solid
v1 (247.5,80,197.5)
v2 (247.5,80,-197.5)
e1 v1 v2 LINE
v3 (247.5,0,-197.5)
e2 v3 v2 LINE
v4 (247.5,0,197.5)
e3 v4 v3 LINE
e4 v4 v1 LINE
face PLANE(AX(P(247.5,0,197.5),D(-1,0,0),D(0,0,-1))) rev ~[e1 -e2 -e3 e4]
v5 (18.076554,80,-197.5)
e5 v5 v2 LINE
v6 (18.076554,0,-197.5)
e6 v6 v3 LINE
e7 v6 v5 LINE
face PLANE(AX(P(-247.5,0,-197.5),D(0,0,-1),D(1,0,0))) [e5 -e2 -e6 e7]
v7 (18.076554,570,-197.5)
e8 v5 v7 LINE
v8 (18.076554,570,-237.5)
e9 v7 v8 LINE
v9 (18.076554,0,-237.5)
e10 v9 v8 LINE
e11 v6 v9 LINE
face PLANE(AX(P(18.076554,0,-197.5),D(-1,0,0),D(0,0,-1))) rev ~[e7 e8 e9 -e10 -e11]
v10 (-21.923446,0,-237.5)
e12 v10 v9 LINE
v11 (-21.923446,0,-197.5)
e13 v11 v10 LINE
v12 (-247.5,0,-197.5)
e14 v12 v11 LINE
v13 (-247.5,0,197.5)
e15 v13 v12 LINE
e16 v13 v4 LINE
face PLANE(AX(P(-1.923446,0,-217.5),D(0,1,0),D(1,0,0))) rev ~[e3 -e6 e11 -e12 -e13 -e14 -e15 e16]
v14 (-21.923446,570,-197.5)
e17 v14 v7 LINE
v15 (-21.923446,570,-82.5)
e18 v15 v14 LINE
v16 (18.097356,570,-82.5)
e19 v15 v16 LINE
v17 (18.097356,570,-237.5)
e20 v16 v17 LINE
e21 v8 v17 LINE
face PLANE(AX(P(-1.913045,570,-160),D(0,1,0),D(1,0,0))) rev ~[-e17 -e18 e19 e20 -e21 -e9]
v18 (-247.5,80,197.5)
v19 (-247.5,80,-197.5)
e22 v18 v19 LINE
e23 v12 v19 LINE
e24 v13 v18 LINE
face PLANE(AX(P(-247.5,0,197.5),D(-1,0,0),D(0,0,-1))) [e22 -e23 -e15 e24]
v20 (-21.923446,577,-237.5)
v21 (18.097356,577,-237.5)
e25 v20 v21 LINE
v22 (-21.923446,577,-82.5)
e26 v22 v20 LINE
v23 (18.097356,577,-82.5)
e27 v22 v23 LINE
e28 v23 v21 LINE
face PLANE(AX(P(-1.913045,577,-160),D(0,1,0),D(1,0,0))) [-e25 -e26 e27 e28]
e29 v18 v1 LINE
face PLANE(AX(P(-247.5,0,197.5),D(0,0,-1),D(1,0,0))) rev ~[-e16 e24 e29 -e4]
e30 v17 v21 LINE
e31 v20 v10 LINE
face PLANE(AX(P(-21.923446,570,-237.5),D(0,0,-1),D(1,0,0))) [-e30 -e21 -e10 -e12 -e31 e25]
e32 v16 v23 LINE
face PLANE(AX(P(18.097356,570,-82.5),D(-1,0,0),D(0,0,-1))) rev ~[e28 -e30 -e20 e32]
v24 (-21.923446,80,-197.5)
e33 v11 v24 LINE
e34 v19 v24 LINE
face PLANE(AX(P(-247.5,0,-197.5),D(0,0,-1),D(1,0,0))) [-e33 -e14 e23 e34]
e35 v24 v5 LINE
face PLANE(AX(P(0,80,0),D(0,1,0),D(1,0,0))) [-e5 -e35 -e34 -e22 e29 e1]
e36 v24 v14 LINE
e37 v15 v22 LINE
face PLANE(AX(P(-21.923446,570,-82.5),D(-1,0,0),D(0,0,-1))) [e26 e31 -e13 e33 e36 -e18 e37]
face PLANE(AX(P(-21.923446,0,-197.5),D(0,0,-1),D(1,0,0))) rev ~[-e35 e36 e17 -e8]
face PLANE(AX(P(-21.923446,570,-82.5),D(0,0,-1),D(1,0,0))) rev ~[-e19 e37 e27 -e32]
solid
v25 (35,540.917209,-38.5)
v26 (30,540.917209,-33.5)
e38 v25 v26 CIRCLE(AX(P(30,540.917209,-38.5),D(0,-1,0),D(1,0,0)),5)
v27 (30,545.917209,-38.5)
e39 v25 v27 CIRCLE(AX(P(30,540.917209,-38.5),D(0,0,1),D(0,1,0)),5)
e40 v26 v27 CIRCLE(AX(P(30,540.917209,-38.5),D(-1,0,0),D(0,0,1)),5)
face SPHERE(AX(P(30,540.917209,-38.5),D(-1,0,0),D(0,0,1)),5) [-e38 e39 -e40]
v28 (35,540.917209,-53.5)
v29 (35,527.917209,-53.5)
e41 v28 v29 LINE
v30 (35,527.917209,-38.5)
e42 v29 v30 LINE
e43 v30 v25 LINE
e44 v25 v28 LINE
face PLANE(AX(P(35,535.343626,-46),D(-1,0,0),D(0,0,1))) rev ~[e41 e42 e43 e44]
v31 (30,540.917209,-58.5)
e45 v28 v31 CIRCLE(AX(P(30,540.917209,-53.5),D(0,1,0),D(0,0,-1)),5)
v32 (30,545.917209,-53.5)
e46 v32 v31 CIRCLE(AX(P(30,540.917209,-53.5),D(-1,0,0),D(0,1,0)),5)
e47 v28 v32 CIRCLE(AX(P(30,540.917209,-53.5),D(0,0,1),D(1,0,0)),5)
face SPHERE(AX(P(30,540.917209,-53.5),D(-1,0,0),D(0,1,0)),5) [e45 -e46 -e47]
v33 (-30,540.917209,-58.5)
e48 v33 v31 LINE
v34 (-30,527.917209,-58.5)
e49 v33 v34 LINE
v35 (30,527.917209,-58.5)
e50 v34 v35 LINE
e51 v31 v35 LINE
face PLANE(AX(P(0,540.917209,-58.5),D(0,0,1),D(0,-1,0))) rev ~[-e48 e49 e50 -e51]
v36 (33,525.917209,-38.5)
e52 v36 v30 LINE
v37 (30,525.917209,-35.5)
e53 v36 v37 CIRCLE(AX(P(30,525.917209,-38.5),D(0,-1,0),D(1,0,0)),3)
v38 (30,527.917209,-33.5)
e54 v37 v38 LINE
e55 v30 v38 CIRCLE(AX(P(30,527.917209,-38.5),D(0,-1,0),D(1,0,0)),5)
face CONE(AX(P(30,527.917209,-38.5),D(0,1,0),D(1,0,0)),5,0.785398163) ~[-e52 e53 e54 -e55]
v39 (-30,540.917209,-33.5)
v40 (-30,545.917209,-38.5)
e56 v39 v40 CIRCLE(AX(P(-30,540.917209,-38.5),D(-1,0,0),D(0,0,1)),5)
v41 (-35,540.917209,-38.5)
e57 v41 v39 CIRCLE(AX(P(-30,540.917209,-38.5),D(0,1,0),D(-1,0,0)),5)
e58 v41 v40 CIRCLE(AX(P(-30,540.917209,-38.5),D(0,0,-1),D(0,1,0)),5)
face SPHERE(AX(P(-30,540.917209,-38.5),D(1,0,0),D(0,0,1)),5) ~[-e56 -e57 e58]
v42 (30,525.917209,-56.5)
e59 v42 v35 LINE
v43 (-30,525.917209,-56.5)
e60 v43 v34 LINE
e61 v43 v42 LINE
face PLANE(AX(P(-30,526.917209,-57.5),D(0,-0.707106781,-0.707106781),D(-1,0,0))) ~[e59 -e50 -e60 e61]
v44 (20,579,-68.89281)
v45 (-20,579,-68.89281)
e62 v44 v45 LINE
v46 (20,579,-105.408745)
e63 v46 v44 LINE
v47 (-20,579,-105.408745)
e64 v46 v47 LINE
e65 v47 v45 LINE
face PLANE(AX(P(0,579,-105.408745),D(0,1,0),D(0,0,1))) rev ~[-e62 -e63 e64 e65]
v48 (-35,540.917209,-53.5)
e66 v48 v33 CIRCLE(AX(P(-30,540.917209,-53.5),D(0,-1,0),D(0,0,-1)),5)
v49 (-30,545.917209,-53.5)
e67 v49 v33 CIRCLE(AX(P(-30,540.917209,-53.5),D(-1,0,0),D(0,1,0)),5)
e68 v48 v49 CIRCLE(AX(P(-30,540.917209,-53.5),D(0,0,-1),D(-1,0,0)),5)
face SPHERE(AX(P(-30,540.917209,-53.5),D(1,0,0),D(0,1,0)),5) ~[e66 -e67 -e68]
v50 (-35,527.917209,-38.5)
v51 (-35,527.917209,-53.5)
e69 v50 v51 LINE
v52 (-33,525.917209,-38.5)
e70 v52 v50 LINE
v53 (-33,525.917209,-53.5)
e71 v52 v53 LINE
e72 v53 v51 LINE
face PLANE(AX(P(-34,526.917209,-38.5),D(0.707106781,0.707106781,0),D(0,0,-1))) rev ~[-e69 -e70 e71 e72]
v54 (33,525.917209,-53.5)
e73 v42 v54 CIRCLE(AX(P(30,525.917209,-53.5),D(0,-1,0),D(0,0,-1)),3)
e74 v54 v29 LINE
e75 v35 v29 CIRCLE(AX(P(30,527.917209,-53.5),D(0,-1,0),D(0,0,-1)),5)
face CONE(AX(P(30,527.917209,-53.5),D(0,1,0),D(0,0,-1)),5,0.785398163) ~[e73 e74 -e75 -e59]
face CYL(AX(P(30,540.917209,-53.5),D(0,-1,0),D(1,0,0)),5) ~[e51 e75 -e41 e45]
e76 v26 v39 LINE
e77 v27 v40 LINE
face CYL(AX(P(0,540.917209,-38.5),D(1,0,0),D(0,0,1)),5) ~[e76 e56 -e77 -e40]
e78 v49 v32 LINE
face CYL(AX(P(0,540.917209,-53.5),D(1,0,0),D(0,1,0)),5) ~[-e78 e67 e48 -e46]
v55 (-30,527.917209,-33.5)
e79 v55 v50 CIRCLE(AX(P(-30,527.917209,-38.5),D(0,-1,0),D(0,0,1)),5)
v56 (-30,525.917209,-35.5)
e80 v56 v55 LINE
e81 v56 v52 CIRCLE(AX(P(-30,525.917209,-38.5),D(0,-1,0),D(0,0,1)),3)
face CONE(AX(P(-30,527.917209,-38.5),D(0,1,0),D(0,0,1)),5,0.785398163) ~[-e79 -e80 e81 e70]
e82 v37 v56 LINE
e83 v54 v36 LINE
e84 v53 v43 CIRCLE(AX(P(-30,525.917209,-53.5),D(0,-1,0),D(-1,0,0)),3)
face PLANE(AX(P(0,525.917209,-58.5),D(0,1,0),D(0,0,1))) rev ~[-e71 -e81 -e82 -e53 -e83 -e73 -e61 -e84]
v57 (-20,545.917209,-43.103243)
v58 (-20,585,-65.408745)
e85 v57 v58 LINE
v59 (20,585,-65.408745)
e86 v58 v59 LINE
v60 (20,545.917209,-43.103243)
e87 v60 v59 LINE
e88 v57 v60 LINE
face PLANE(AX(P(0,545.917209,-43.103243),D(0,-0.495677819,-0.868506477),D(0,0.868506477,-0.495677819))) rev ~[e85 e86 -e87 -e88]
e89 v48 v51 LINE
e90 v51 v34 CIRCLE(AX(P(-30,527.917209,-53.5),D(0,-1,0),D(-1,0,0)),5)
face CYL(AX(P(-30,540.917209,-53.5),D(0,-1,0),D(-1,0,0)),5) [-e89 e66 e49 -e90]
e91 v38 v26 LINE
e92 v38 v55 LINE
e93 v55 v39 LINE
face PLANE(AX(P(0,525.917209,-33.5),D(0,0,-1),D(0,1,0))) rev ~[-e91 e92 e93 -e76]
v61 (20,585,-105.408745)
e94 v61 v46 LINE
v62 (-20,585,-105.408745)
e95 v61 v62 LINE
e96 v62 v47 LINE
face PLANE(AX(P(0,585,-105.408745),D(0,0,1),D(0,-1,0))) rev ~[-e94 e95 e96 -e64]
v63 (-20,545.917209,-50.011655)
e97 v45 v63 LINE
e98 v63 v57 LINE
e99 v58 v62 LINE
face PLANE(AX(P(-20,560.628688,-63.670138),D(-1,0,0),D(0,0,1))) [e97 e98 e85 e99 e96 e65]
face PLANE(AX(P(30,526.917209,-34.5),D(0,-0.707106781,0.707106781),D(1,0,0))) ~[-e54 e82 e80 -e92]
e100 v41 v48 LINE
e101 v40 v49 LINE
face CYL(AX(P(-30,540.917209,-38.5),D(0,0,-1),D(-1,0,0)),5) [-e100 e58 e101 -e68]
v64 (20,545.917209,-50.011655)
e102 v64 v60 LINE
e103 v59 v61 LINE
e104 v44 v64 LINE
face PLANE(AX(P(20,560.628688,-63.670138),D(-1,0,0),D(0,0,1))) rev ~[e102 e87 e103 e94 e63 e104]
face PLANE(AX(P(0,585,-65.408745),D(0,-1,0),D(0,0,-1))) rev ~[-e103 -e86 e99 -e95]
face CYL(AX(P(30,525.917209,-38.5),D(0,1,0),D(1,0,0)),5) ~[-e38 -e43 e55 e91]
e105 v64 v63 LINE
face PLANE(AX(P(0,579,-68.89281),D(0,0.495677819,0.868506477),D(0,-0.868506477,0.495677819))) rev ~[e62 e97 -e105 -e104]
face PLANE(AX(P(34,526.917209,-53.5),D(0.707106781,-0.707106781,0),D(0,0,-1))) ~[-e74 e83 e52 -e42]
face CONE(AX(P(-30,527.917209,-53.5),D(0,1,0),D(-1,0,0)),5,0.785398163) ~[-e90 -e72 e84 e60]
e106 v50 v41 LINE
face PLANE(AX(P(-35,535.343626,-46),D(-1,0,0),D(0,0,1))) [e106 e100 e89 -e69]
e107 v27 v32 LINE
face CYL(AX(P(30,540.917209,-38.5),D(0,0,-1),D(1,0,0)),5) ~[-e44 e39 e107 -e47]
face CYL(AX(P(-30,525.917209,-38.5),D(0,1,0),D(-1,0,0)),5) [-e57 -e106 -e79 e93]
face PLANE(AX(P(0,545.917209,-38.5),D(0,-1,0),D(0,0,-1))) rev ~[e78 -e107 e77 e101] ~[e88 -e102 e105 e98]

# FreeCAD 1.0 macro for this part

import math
import FreeCAD as App
import Part
import Sketcher

V = App.Vector


def edges_at(feature, points):
    """Names of the edges that pass closest to the given points."""
    edges = feature.Shape.Edges
    near = lambda p: min(range(len(edges)), key=lambda i: edges[i].distToShape(Part.Vertex(*p))[0])
    return sorted({f"Edge{near(p) + 1}" for p in points})


def add_polygon(sketch, points):
    """Adds a closed chain of lines whose ends are joined by coincident constraints."""
    first, n = sketch.GeometryCount, len(points)
    for a, b in zip(points, points[1:] + points[:1]):
        sketch.addGeometry(Part.LineSegment(App.Vector(*a, 0), App.Vector(*b, 0)), False)
    for i in range(n):
        sketch.addConstraint(Sketcher.Constraint("Coincident", first + i, 2, first + (i + 1) % n, 1))

doc = App.newDocument("Part")
body = doc.addObject("PartDesign::Body", "Body")

sketch1 = body.newObject("Sketcher::SketchObject", "Sketch")
sketch1.AttachmentSupport = (doc.getObject("XZ_Plane"), [""])
sketch1.MapMode = "FlatFace"
add_polygon(sketch1, [(-248, -198), (-248, 198), (248, 198), (248, -198)])
sketch1.addConstraint(Sketcher.Constraint("Vertical", 0))
sketch1.addConstraint(Sketcher.Constraint("Horizontal", 1))
sketch1.addConstraint(Sketcher.Constraint("Vertical", 2))
sketch1.addConstraint(Sketcher.Constraint("Horizontal", 3))
sketch1.addConstraint(Sketcher.Constraint("Symmetric", 0, 2, 2, 2, -1, 1))
sketch1.addConstraint(Sketcher.Constraint("DistanceX", 1, 1, 1, 2, 495.0))
sketch1.addConstraint(Sketcher.Constraint("DistanceY", 0, 1, 0, 2, 395.0))
pad1 = body.newObject("PartDesign::Pad", "Pad")
pad1.Profile = sketch1
pad1.Length = 80
pad1.Reversed = True

sketch2 = body.newObject("Sketcher::SketchObject", "Sketch001")
sketch2.AttachmentSupport = (doc.getObject("XZ_Plane"), [""])
sketch2.MapMode = "FlatFace"
add_polygon(sketch2, [(-22, -238), (-22, -198), (18, -198), (18, -238)])
sketch2.addConstraint(Sketcher.Constraint("Vertical", 0))
sketch2.addConstraint(Sketcher.Constraint("Horizontal", 1))
sketch2.addConstraint(Sketcher.Constraint("Vertical", 2))
sketch2.addConstraint(Sketcher.Constraint("Horizontal", 3))
sketch2.addConstraint(Sketcher.Constraint("Equal", 3, 0))
sketch2.addConstraint(Sketcher.Constraint("DistanceX", 1, 1, 1, 2, 40.0))
sketch2.addConstraint(Sketcher.Constraint("DistanceY", 0, 2, -1, 1, 197.5))
sketch2.addConstraint(Sketcher.Constraint("DistanceX", 0, 2, -1, 1, 21.923446))
pad2 = body.newObject("PartDesign::Pad", "Pad001")
pad2.Profile = sketch2
pad2.Length = 570
pad2.Reversed = True

sketch3 = body.newObject("Sketcher::SketchObject", "Sketch002")
sketch3.AttachmentSupport = (doc.getObject("XZ_Plane"), [""])
sketch3.MapMode = "FlatFace"
sketch3.AttachmentOffset = App.Placement(V(0, 0, -570), App.Rotation())
add_polygon(sketch3, [(-22, -238), (-22, -82), (18, -82), (18, -238)])
sketch3.addConstraint(Sketcher.Constraint("Vertical", 0))
sketch3.addConstraint(Sketcher.Constraint("Horizontal", 1))
sketch3.addConstraint(Sketcher.Constraint("Vertical", 2))
sketch3.addConstraint(Sketcher.Constraint("Horizontal", 3))
sketch3.addConstraint(Sketcher.Constraint("DistanceY", 0, 1, 0, 2, 155.0))
sketch3.addConstraint(Sketcher.Constraint("DistanceY", 0, 2, -1, 1, 82.5))
sketch3.addConstraint(Sketcher.Constraint("DistanceX", 1, 1, 1, 2, 40.020802))
sketch3.addConstraint(Sketcher.Constraint("DistanceX", 0, 2, -1, 1, 21.923446))
pad3 = body.newObject("PartDesign::Pad", "Pad002")
pad3.Profile = sketch3
pad3.Length = 7
pad3.Reversed = True
body2 = doc.addObject("PartDesign::Body", "Body001")

sketch4 = body2.newObject("Sketcher::SketchObject", "Sketch003")
sketch4.AttachmentSupport = (doc.getObject("YZ_Plane001"), [""])
sketch4.MapMode = "FlatFace"
sketch4.addGeometry(Part.LineSegment(V(585, -105.4, 0), V(585, -65.4, 0)), False)
sketch4.addGeometry(Part.LineSegment(V(585, -65.4, 0), V(545.9, -43.1, 0)), False)
sketch4.addGeometry(Part.LineSegment(V(545.9, -43.1, 0), V(545.9, -38.5, 0)), False)
sketch4.addGeometry(Part.ArcOfCircle(Part.Circle(V(540.9, -38.5, 0), V(0, 0, 1), 5), math.radians(0), math.radians(90)), False)
sketch4.addGeometry(Part.LineSegment(V(540.9, -33.5, 0), V(525.9, -33.5, 0)), False)
sketch4.addGeometry(Part.LineSegment(V(525.9, -33.5, 0), V(525.9, -58.5, 0)), False)
sketch4.addGeometry(Part.LineSegment(V(525.9, -58.5, 0), V(540.9, -58.5, 0)), False)
sketch4.addGeometry(Part.ArcOfCircle(Part.Circle(V(540.9, -53.5, 0), V(0, 0, 1), 5), math.radians(-90), math.radians(0)), False)
sketch4.addGeometry(Part.LineSegment(V(545.9, -53.5, 0), V(545.9, -50, 0)), False)
sketch4.addGeometry(Part.LineSegment(V(545.9, -50, 0), V(579, -68.9, 0)), False)
sketch4.addGeometry(Part.LineSegment(V(579, -68.9, 0), V(579, -105.4, 0)), False)
sketch4.addGeometry(Part.LineSegment(V(579, -105.4, 0), V(585, -105.4, 0)), False)
sketch4.addConstraint(Sketcher.Constraint("Coincident", 0, 2, 1, 1))
sketch4.addConstraint(Sketcher.Constraint("Coincident", 1, 2, 2, 1))
sketch4.addConstraint(Sketcher.Constraint("Tangent", 2, 2, 3, 1))
sketch4.addConstraint(Sketcher.Constraint("Tangent", 3, 2, 4, 1))
sketch4.addConstraint(Sketcher.Constraint("Coincident", 4, 2, 5, 1))
sketch4.addConstraint(Sketcher.Constraint("Coincident", 5, 2, 6, 1))
sketch4.addConstraint(Sketcher.Constraint("Tangent", 6, 2, 7, 1))
sketch4.addConstraint(Sketcher.Constraint("Tangent", 7, 2, 8, 1))
sketch4.addConstraint(Sketcher.Constraint("Coincident", 8, 2, 9, 1))
sketch4.addConstraint(Sketcher.Constraint("Coincident", 9, 2, 10, 1))
sketch4.addConstraint(Sketcher.Constraint("Coincident", 10, 2, 11, 1))
sketch4.addConstraint(Sketcher.Constraint("Coincident", 11, 2, 0, 1))
sketch4.addConstraint(Sketcher.Constraint("Vertical", 0))
sketch4.addConstraint(Sketcher.Constraint("Vertical", 2))
sketch4.addConstraint(Sketcher.Constraint("Horizontal", 4))
sketch4.addConstraint(Sketcher.Constraint("Vertical", 5))
sketch4.addConstraint(Sketcher.Constraint("Horizontal", 6))
sketch4.addConstraint(Sketcher.Constraint("Vertical", 8))
sketch4.addConstraint(Sketcher.Constraint("Vertical", 10))
sketch4.addConstraint(Sketcher.Constraint("Horizontal", 11))
sketch4.addConstraint(Sketcher.Constraint("Equal", 3, 7))
sketch4.addConstraint(Sketcher.Constraint("Parallel", 1, 9))
sketch4.addConstraint(Sketcher.Constraint("Vertical", 3, 3, 7, 3))
sketch4.addConstraint(Sketcher.Constraint("Radius", 3, 5.0))
sketch4.addConstraint(Sketcher.Constraint("DistanceX", 4, 2, 4, 1, 15.0))
sketch4.addConstraint(Sketcher.Constraint("DistanceX", 11, 1, 11, 2, 6.0))
sketch4.addConstraint(Sketcher.Constraint("DistanceY", 0, 1, 0, 2, 40.0))
sketch4.addConstraint(Sketcher.Constraint("DistanceY", 5, 2, 5, 1, 25.0))
sketch4.addConstraint(Sketcher.Constraint("Distance", 1, 45.0))
sketch4.addConstraint(Sketcher.Constraint("DistanceX", -1, 1, 0, 2, 585.0))
sketch4.addConstraint(Sketcher.Constraint("DistanceY", 3, 3, -1, 1, 38.5))
sketch4.addConstraint(Sketcher.Constraint("DistanceY", 0, 2, 1, 2, 22.305502))
sketch4.addConstraint(Sketcher.Constraint("DistanceY", 2, 1, 2, 2, 4.603243))
sketch4.addConstraint(Sketcher.Constraint("DistanceY", 8, 1, 8, 2, 3.488345))
pad4 = body2.newObject("PartDesign::Pad", "Pad003")
pad4.Profile = sketch4
pad4.Length = 40
pad4.Midplane = True

sketch5 = body2.newObject("Sketcher::SketchObject", "Sketch004")
sketch5.AttachmentSupport = (doc.getObject("YZ_Plane001"), [""])
sketch5.MapMode = "FlatFace"
sketch5.addGeometry(Part.LineSegment(V(526, -34, 0), V(526, -58, 0)), False)
sketch5.addGeometry(Part.LineSegment(V(526, -58, 0), V(541, -58, 0)), False)
sketch5.addGeometry(Part.ArcOfCircle(Part.Circle(V(541, -54, 0), V(0, 0, 1), 5), math.radians(-90), math.radians(0)), False)
sketch5.addGeometry(Part.LineSegment(V(546, -54, 0), V(546, -38, 0)), False)
sketch5.addGeometry(Part.ArcOfCircle(Part.Circle(V(541, -38, 0), V(0, 0, 1), 5), math.radians(0), math.radians(90)), False)
sketch5.addGeometry(Part.LineSegment(V(541, -34, 0), V(526, -34, 0)), False)
sketch5.addConstraint(Sketcher.Constraint("Coincident", 0, 2, 1, 1))
sketch5.addConstraint(Sketcher.Constraint("Tangent", 1, 2, 2, 1))
sketch5.addConstraint(Sketcher.Constraint("Tangent", 2, 2, 3, 1))
sketch5.addConstraint(Sketcher.Constraint("Tangent", 3, 2, 4, 1))
sketch5.addConstraint(Sketcher.Constraint("Tangent", 4, 2, 5, 1))
sketch5.addConstraint(Sketcher.Constraint("Coincident", 5, 2, 0, 1))
sketch5.addConstraint(Sketcher.Constraint("Vertical", 0))
sketch5.addConstraint(Sketcher.Constraint("Horizontal", 1))
sketch5.addConstraint(Sketcher.Constraint("Vertical", 3))
sketch5.addConstraint(Sketcher.Constraint("Horizontal", 5))
sketch5.addConstraint(Sketcher.Constraint("Equal", 2, 4))
sketch5.addConstraint(Sketcher.Constraint("Equal", 5, 3))
sketch5.addConstraint(Sketcher.Constraint("Radius", 2, 5.0))
sketch5.addConstraint(Sketcher.Constraint("DistanceX", 1, 1, 1, 2, 15.0))
sketch5.addConstraint(Sketcher.Constraint("DistanceY", 2, 3, -1, 1, 53.5))
sketch5.addConstraint(Sketcher.Constraint("DistanceX", -1, 1, 2, 3, 540.917209))
pad5 = body2.newObject("PartDesign::Pad", "Pad004")
pad5.Profile = sketch5
pad5.Length = 70
pad5.Midplane = True
doc.recompute()

fillet = body2.newObject("PartDesign::Fillet", "Fillet")
fillet.Base = (pad5, edges_at(pad5, [
    (-35, 533.417, -58.5),
    (-35, 544.453, -57.036),
    (-35, 545.917, -46),
    (-35, 544.453, -34.964),
    (-35, 533.417, -33.5),
    (35, 533.417, -58.5),
    (35, 544.453, -57.036),
    (35, 545.917, -46),
    (35, 544.453, -34.964),
    (35, 533.417, -33.5),
]))
fillet.Radius = 5
doc.recompute()

chamfer = body2.newObject("PartDesign::Chamfer", "Chamfer")
chamfer.Base = (fillet, edges_at(fillet, [
    (0, 525.917, -33.5),
    (-35, 525.917, -46),
    (0, 525.917, -58.5),
    (35, 525.917, -46),
    (33.536, 525.917, -57.036),
    (-33.536, 525.917, -57.036),
    (33.536, 525.917, -34.964),
    (-33.536, 525.917, -34.964),
]))
chamfer.Size = 2

doc.recompute()
